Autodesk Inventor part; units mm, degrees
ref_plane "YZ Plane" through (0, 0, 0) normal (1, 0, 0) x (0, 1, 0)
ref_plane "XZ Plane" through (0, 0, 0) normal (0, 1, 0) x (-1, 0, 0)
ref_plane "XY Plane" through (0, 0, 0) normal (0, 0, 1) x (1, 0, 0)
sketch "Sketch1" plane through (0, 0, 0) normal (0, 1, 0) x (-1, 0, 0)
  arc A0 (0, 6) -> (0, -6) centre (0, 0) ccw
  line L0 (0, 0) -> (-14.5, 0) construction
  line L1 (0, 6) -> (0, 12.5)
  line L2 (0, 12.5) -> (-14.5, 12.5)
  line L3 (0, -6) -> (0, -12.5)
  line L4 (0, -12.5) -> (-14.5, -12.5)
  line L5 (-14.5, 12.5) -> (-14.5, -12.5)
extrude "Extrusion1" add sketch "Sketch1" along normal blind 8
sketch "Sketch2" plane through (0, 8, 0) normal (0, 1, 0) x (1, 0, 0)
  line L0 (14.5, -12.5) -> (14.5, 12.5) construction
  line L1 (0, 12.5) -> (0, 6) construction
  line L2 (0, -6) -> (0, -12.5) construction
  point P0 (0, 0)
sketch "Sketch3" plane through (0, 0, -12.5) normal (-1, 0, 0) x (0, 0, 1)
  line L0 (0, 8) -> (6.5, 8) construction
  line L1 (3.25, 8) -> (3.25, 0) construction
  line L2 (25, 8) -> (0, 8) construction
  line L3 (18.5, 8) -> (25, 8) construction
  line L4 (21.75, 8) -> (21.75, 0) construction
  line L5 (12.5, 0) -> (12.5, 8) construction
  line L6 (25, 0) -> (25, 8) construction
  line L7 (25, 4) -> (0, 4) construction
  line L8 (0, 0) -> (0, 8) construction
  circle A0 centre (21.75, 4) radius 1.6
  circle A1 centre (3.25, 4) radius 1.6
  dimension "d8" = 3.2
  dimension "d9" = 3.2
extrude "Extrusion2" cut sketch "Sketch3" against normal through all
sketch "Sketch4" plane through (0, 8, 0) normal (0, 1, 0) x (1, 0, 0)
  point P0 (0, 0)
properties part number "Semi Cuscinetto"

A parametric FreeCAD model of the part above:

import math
import FreeCAD as App
import Part
import Sketcher
from FreeCAD import Vector

doc = App.newDocument("Part")
params = doc.addObject("Spreadsheet::Sheet", "Params")
for row, (alias, value) in enumerate([
    ("sketch1_radius", "6 mm"),
    ("sketch1_height", "25 mm"),
    ("sketch1_width", "14.5 mm"),
    ("pad1_length", "8 mm"),
    ("sketch2_diameter", "3.2 mm"),
], start=1):
    params.set(f"A{row}", alias)
    params.set(f"B{row}", "=" + value)
    params.setAlias(f"B{row}", alias)

body = doc.addObject("PartDesign::Body", "Body")

sketch1 = body.newObject("Sketcher::SketchObject", "Sketch")
sketch1.AttachmentSupport = (doc.getObject("XZ_Plane"), [""])
sketch1.MapMode = "FlatFace"
sketch1.addGeometry(Part.ArcOfCircle(Part.Circle(Vector(0, 0, 0), Vector(0, 0, 1), 6), math.radians(-90), math.radians(90)), False)
sketch1.addGeometry(Part.LineSegment(Vector(0, 6, 0), Vector(0, 12, 0)), False)
sketch1.addGeometry(Part.LineSegment(Vector(0, 12, 0), Vector(14, 12, 0)), False)
sketch1.addGeometry(Part.LineSegment(Vector(14, 12, 0), Vector(14, -12, 0)), False)
sketch1.addGeometry(Part.LineSegment(Vector(14, -12, 0), Vector(0, -12, 0)), False)
sketch1.addGeometry(Part.LineSegment(Vector(0, -12, 0), Vector(0, -6, 0)), False)
sketch1.addConstraint(Sketcher.Constraint("Coincident", 0, 2, 1, 1))
sketch1.addConstraint(Sketcher.Constraint("Coincident", 1, 2, 2, 1))
sketch1.addConstraint(Sketcher.Constraint("Coincident", 2, 2, 3, 1))
sketch1.addConstraint(Sketcher.Constraint("Coincident", 3, 2, 4, 1))
sketch1.addConstraint(Sketcher.Constraint("Coincident", 4, 2, 5, 1))
sketch1.addConstraint(Sketcher.Constraint("Coincident", 5, 2, 0, 1))
sketch1.addConstraint(Sketcher.Constraint("Vertical", 1))
sketch1.addConstraint(Sketcher.Constraint("Horizontal", 2))
sketch1.addConstraint(Sketcher.Constraint("Vertical", 3))
sketch1.addConstraint(Sketcher.Constraint("Horizontal", 4))
sketch1.addConstraint(Sketcher.Constraint("Vertical", 5))
sketch1.addConstraint(Sketcher.Constraint("Coincident", 0, 3, -1, 1))
sketch1.addConstraint(Sketcher.Constraint("Symmetric", 1, 2, 4, 2, -1, 1))
sketch1.addConstraint(Sketcher.Constraint("PointOnObject", 0, 2, -2))
sketch1.addConstraint(Sketcher.Constraint("Radius", 0, 6.0))
sketch1.addConstraint(Sketcher.Constraint("DistanceY", 3, 2, 3, 1, 25.0))
sketch1.addConstraint(Sketcher.Constraint("DistanceX", 2, 1, 2, 2, 14.5))
sketch1.setExpression("Constraints[14]", "Params.sketch1_radius")
sketch1.setExpression("Constraints[15]", "Params.sketch1_height")
sketch1.setExpression("Constraints[16]", "Params.sketch1_width")
pad1 = body.newObject("PartDesign::Pad", "Pad")
pad1.Profile = sketch1
pad1.setExpression("Length", "Params.pad1_length")
pad1.Reversed = True

sketch2 = body.newObject("Sketcher::SketchObject", "Sketch001")
sketch2.AttachmentSupport = (doc.getObject("YZ_Plane"), [""])
sketch2.MapMode = "FlatFace"
sketch2.addGeometry(Part.Circle(Vector(4, 9.2, 0), Vector(0, 0, 1), 1.6), False)
sketch2.addGeometry(Part.Circle(Vector(4, -9.2, 0), Vector(0, 0, 1), 1.6), False)
sketch2.addConstraint(Sketcher.Constraint("Equal", 0, 1))
sketch2.addConstraint(Sketcher.Constraint("Symmetric", 0, 3, 1, 3, -1))
sketch2.addConstraint(Sketcher.Constraint("Diameter", 0, 3.2))
sketch2.addConstraint(Sketcher.Constraint("DistanceX", -1, 1, 0, 3, 4.0))
sketch2.addConstraint(Sketcher.Constraint("DistanceY", 1, 3, 0, 3, 18.5))
sketch2.setExpression("Constraints[2]", "Params.sketch2_diameter")
pocket1 = body.newObject("PartDesign::Pocket", "Pocket")
pocket1.Profile = sketch2
pocket1.Type = "ThroughAll"
pocket1.Reversed = True

doc.recompute()
